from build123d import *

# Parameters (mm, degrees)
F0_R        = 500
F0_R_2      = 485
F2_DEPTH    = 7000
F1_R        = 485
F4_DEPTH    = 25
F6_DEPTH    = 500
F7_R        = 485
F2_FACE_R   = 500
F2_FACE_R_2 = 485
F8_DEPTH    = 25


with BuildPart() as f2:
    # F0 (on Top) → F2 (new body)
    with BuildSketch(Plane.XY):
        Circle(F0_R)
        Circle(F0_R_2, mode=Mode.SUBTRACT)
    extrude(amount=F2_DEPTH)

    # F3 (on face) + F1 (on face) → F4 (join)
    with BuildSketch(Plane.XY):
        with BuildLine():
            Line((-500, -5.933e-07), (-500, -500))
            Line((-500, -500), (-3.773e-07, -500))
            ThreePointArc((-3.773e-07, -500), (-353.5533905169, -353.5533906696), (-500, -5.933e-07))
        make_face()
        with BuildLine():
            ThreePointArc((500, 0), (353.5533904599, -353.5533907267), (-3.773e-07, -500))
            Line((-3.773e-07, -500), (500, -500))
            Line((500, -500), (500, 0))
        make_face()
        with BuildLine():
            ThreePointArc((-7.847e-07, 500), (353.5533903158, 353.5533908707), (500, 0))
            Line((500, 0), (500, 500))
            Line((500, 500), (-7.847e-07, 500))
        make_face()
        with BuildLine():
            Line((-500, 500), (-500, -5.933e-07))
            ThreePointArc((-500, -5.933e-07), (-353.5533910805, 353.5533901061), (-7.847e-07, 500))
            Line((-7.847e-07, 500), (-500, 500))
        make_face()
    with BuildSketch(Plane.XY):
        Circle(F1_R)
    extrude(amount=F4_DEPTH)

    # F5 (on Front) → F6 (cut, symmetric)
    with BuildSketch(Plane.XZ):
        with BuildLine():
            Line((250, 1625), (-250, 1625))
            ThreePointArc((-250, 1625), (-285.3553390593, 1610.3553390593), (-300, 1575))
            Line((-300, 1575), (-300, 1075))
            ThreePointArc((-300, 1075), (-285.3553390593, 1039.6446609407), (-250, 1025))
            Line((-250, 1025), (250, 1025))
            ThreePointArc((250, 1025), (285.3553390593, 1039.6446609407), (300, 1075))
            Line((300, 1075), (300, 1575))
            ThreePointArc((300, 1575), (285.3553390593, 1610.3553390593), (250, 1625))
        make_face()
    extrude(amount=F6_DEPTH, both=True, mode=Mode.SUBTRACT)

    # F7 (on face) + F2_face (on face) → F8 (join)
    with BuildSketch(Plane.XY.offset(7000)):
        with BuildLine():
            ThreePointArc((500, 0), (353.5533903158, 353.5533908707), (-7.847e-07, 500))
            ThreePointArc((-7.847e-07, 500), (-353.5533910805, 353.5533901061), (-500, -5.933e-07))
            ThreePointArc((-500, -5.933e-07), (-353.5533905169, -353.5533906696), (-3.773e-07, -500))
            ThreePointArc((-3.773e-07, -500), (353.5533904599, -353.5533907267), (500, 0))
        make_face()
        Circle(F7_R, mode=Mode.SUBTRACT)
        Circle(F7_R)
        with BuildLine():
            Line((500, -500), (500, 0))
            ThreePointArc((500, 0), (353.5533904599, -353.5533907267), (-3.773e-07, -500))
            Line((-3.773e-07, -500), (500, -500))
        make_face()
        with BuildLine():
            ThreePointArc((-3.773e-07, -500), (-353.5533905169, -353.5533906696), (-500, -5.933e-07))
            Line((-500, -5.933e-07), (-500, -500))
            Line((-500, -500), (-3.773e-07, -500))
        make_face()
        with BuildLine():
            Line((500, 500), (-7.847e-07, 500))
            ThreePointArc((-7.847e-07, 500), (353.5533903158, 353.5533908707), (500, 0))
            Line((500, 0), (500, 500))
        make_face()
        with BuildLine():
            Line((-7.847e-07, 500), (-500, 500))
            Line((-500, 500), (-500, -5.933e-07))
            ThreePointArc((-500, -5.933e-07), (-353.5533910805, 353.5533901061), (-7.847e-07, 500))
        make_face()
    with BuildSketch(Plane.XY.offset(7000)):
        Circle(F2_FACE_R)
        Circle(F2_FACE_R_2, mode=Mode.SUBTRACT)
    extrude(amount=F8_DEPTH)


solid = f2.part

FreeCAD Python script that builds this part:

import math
import FreeCAD as App
import Part
import Sketcher
from FreeCAD import Vector
Q = App.Units.Quantity


def add_polygon(sketch, points):
    """Adds a closed chain of lines whose ends are joined by coincident constraints."""
    first, n = sketch.GeometryCount, len(points)
    for a, b in zip(points, points[1:] + points[:1]):
        sketch.addGeometry(Part.LineSegment(App.Vector(*a, 0), App.Vector(*b, 0)), False)
    for i in range(n):
        sketch.addConstraint(Sketcher.Constraint("Coincident", first + i, 2, first + (i + 1) % n, 1))

doc = App.newDocument("Part")
body = doc.addObject("PartDesign::Body", "Body")

# Sketch on XY plane
sketch1 = body.newObject("Sketcher::SketchObject", "Sketch")
sketch1.AttachmentSupport = (doc.getObject("XY_Plane"), [""])
sketch1.MapMode = "FlatFace"
sketch1.addGeometry(Part.Circle(Vector(0, 0, 0), Vector(0, 0, 1), 500), False)
sketch1.addGeometry(Part.Circle(Vector(0, 0, 0), Vector(0, 0, 1), 485), False)
sketch1.addConstraint(Sketcher.Constraint("Coincident", 0, 3, -1, 1))
sketch1.addConstraint(Sketcher.Constraint("Coincident", 1, 3, -1, 1))
sketch1.addConstraint(Sketcher.Constraint("Diameter", 0, Q("1000 mm")))
sketch1.addConstraint(Sketcher.Constraint("Diameter", 1, Q("970 mm")))
pad1 = body.newObject("PartDesign::Pad", "Pad")
pad1.Profile = sketch1
pad1.Length = 7000

# Sketch on XY plane
sketch2 = body.newObject("Sketcher::SketchObject", "Sketch001")
sketch2.AttachmentSupport = (doc.getObject("XY_Plane"), [""])
sketch2.MapMode = "FlatFace"
sketch2.addGeometry(Part.LineSegment(Vector(-500, 0, 0), Vector(-500, -500, 0)), False)
sketch2.addGeometry(Part.LineSegment(Vector(-500, -500, 0), Vector(0, -500, 0)), False)
sketch2.addGeometry(Part.ArcOfCircle(Part.Circle(Vector(0, 0, 0), Vector(0, 0, 1), 500), math.radians(-180), math.radians(-90)), False)
sketch2.addGeometry(Part.ArcOfCircle(Part.Circle(Vector(0, 0, 0), Vector(0, 0, 1), 500), math.radians(-90), math.radians(0)), False)
sketch2.addGeometry(Part.LineSegment(Vector(0, -500, 0), Vector(500, -500, 0)), False)
sketch2.addGeometry(Part.LineSegment(Vector(500, -500, 0), Vector(500, 0, 0)), False)
sketch2.addGeometry(Part.ArcOfCircle(Part.Circle(Vector(0, 0, 0), Vector(0, 0, 1), 500), math.radians(0), math.radians(90)), False)
sketch2.addGeometry(Part.LineSegment(Vector(500, 0, 0), Vector(500, 500, 0)), False)
sketch2.addGeometry(Part.LineSegment(Vector(500, 500, 0), Vector(0, 500, 0)), False)
sketch2.addGeometry(Part.LineSegment(Vector(-500, 500, 0), Vector(-500, 0, 0)), False)
sketch2.addGeometry(Part.ArcOfCircle(Part.Circle(Vector(0, 0, 0), Vector(0, 0, 1), 500), math.radians(90), math.radians(180)), False)
sketch2.addGeometry(Part.LineSegment(Vector(0, 500, 0), Vector(-500, 500, 0)), False)
sketch2.addGeometry(Part.Circle(Vector(0, 0, 0), Vector(0, 0, 1), 485), False)
sketch2.addConstraint(Sketcher.Constraint("Coincident", 0, 2, 1, 1))
sketch2.addConstraint(Sketcher.Constraint("Tangent", 1, 2, 2, 2))
sketch2.addConstraint(Sketcher.Constraint("Tangent", 2, 1, 0, 1))
sketch2.addConstraint(Sketcher.Constraint("Tangent", 3, 1, 4, 1))
sketch2.addConstraint(Sketcher.Constraint("Coincident", 4, 2, 5, 1))
sketch2.addConstraint(Sketcher.Constraint("Tangent", 5, 2, 3, 2))
sketch2.addConstraint(Sketcher.Constraint("Tangent", 6, 1, 7, 1))
sketch2.addConstraint(Sketcher.Constraint("Coincident", 7, 2, 8, 1))
sketch2.addConstraint(Sketcher.Constraint("Tangent", 8, 2, 6, 2))
sketch2.addConstraint(Sketcher.Constraint("Tangent", 9, 2, 10, 2))
sketch2.addConstraint(Sketcher.Constraint("Tangent", 10, 1, 11, 1))
sketch2.addConstraint(Sketcher.Constraint("Coincident", 11, 2, 9, 1))
sketch2.addConstraint(Sketcher.Constraint("Vertical", 0))
sketch2.addConstraint(Sketcher.Constraint("Horizontal", 1))
sketch2.addConstraint(Sketcher.Constraint("Horizontal", 4))
sketch2.addConstraint(Sketcher.Constraint("Vertical", 5))
sketch2.addConstraint(Sketcher.Constraint("Vertical", 7))
sketch2.addConstraint(Sketcher.Constraint("Horizontal", 8))
sketch2.addConstraint(Sketcher.Constraint("Vertical", 9))
sketch2.addConstraint(Sketcher.Constraint("Horizontal", 11))
sketch2.addConstraint(Sketcher.Constraint("Coincident", 2, 3, -1, 1))
sketch2.addConstraint(Sketcher.Constraint("Coincident", 3, 3, -1, 1))
sketch2.addConstraint(Sketcher.Constraint("Coincident", 6, 3, -1, 1))
sketch2.addConstraint(Sketcher.Constraint("Coincident", 10, 3, -1, 1))
sketch2.addConstraint(Sketcher.Constraint("Coincident", 12, 3, -1, 1))
sketch2.addConstraint(Sketcher.Constraint("Equal", 2, 3))
sketch2.addConstraint(Sketcher.Constraint("Equal", 3, 6))
sketch2.addConstraint(Sketcher.Constraint("Equal", 6, 10))
sketch2.addConstraint(Sketcher.Constraint("Diameter", 12, Q("970 mm")))
sketch2.addConstraint(Sketcher.Constraint("Radius", 2, Q("500 mm")))
pad2 = body.newObject("PartDesign::Pad", "Pad001")
pad2.Profile = sketch2
pad2.Length = 25

# Sketch on XZ plane
sketch3 = body.newObject("Sketcher::SketchObject", "Sketch002")
sketch3.AttachmentSupport = (doc.getObject("XZ_Plane"), [""])
sketch3.MapMode = "FlatFace"
sketch3.addGeometry(Part.LineSegment(Vector(250, 1625, 0), Vector(-250, 1625, 0)), False)
sketch3.addGeometry(Part.ArcOfCircle(Part.Circle(Vector(-250, 1575, 0), Vector(0, 0, 1), 50), math.radians(90), math.radians(180)), False)
sketch3.addGeometry(Part.LineSegment(Vector(-300, 1575, 0), Vector(-300, 1075, 0)), False)
sketch3.addGeometry(Part.ArcOfCircle(Part.Circle(Vector(-250, 1075, 0), Vector(0, 0, 1), 50), math.radians(180), math.radians(270)), False)
sketch3.addGeometry(Part.LineSegment(Vector(-250, 1025, 0), Vector(250, 1025, 0)), False)
sketch3.addGeometry(Part.ArcOfCircle(Part.Circle(Vector(250, 1075, 0), Vector(0, 0, 1), 50), math.radians(-90), math.radians(0)), False)
sketch3.addGeometry(Part.LineSegment(Vector(300, 1075, 0), Vector(300, 1575, 0)), False)
sketch3.addGeometry(Part.ArcOfCircle(Part.Circle(Vector(250, 1575, 0), Vector(0, 0, 1), 50), math.radians(0), math.radians(90)), False)
sketch3.addConstraint(Sketcher.Constraint("Tangent", 0, 2, 1, 1))
sketch3.addConstraint(Sketcher.Constraint("Tangent", 1, 2, 2, 1))
sketch3.addConstraint(Sketcher.Constraint("Tangent", 2, 2, 3, 1))
sketch3.addConstraint(Sketcher.Constraint("Tangent", 3, 2, 4, 1))
sketch3.addConstraint(Sketcher.Constraint("Tangent", 4, 2, 5, 1))
sketch3.addConstraint(Sketcher.Constraint("Tangent", 5, 2, 6, 1))
sketch3.addConstraint(Sketcher.Constraint("Tangent", 6, 2, 7, 1))
sketch3.addConstraint(Sketcher.Constraint("Tangent", 7, 2, 0, 1))
sketch3.addConstraint(Sketcher.Constraint("Horizontal", 0))
sketch3.addConstraint(Sketcher.Constraint("Vertical", 2))
sketch3.addConstraint(Sketcher.Constraint("Horizontal", 4))
sketch3.addConstraint(Sketcher.Constraint("Vertical", 6))
sketch3.addConstraint(Sketcher.Constraint("Equal", 1, 3))
sketch3.addConstraint(Sketcher.Constraint("Equal", 3, 5))
sketch3.addConstraint(Sketcher.Constraint("Equal", 5, 7))
sketch3.addConstraint(Sketcher.Constraint("Equal", 4, 2))
sketch3.addConstraint(Sketcher.Constraint("Radius", 1, Q("50 mm")))
sketch3.addConstraint(Sketcher.Constraint("DistanceX", 0, 2, 0, 1, Q("500 mm")))
sketch3.addConstraint(Sketcher.Constraint("DistanceX", 1, 3, -1, 1, Q("250 mm")))
sketch3.addConstraint(Sketcher.Constraint("DistanceY", -1, 1, 1, 3, Q("1575 mm")))
pocket1 = body.newObject("PartDesign::Pocket", "Pocket")
pocket1.Profile = sketch3
pocket1.Length = 1000
pocket1.Midplane = True

# Sketch on XY plane
sketch4 = body.newObject("Sketcher::SketchObject", "Sketch003")
sketch4.AttachmentSupport = (doc.getObject("XY_Plane"), [""])
sketch4.MapMode = "FlatFace"
sketch4.AttachmentOffset = App.Placement(Vector(0, 0, 7000), App.Rotation())
add_polygon(sketch4, [(-500, -500), (500, -500), (500, 500), (-500, 500)])  # lines 0-3
sketch4.addConstraint(Sketcher.Constraint("Horizontal", 0))
sketch4.addConstraint(Sketcher.Constraint("Vertical", 1))
sketch4.addConstraint(Sketcher.Constraint("Horizontal", 2))
sketch4.addConstraint(Sketcher.Constraint("Vertical", 3))
sketch4.addConstraint(Sketcher.Constraint("Symmetric", 0, 2, 2, 2, -1, 1))
sketch4.addConstraint(Sketcher.Constraint("Equal", 2, 1))
sketch4.addConstraint(Sketcher.Constraint("DistanceX", 0, 1, 0, 2, Q("1000 mm")))
pad3 = body.newObject("PartDesign::Pad", "Pad002")
pad3.Profile = sketch4
pad3.Length = 25

doc.recompute()
